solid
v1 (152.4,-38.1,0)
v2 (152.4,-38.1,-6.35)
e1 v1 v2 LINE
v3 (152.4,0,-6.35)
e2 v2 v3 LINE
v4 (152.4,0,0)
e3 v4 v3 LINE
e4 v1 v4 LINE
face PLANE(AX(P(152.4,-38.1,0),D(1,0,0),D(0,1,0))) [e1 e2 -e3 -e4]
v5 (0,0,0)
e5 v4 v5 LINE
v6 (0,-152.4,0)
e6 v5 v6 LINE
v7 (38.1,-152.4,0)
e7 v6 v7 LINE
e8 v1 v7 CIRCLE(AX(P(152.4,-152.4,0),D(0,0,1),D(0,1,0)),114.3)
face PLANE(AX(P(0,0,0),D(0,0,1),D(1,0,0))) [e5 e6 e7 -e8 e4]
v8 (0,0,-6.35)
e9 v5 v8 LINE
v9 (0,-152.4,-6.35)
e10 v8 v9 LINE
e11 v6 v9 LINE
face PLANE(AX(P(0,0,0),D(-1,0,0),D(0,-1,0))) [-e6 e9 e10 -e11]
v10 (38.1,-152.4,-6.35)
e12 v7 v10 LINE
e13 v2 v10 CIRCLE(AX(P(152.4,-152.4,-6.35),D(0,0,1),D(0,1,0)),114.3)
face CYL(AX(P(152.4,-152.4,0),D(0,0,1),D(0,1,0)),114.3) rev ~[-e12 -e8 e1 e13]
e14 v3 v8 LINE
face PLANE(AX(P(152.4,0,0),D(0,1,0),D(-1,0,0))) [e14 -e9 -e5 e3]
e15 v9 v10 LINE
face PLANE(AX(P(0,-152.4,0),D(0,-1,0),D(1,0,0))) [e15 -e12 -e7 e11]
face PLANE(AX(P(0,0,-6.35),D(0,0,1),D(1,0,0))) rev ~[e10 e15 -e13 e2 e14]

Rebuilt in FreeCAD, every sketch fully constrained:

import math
import FreeCAD as App
import Part
import Sketcher
Q = App.Units.Quantity

doc = App.newDocument("Part")
params = doc.addObject("Spreadsheet::Sheet", "Params")
for row, (alias, value) in enumerate([
    ("sketch1_width", "6 in"),
    ("sketch1_width2", "1.5 in"),
    ("pad1_length", "0.25 in"),
], start=1):
    params.set(f"A{row}", alias)
    params.set(f"B{row}", "=" + value)
    params.setAlias(f"B{row}", alias)

body = doc.addObject("PartDesign::Body", "Body")

# Sketch on XY plane
sketch1 = body.newObject("Sketcher::SketchObject", "Sketch")
sketch1.AttachmentSupport = (doc.getObject("XY_Plane"), [""])
sketch1.MapMode = "FlatFace"
sketch1.addGeometry([
    Part.LineSegment(App.Vector(152, 0, 0), App.Vector(0, 0, 0)),  # 0
    Part.LineSegment(App.Vector(0, 0, 0), App.Vector(0, -152, 0)),  # 1
    Part.LineSegment(App.Vector(0, -152, 0), App.Vector(38, -152, 0)),  # 2
    Part.ArcOfCircle(Part.Circle(App.Vector(152, -152, 0), App.Vector(0, 0, 1), 114), math.radians(90), math.radians(180)),  # 3
    Part.LineSegment(App.Vector(152, -38, 0), App.Vector(152, 0, 0)),  # 4
], False)
sketch1.addConstraint([
    Sketcher.Constraint("Coincident", 0, 2, 1, 1),
    Sketcher.Constraint("Coincident", 1, 2, 2, 1),
    Sketcher.Constraint("Coincident", 2, 2, 3, 2),
    Sketcher.Constraint("Coincident", 3, 1, 4, 1),
    Sketcher.Constraint("Coincident", 4, 2, 0, 1),
    Sketcher.Constraint("Horizontal", 0),
    Sketcher.Constraint("Vertical", 1),
    Sketcher.Constraint("Horizontal", 2),
    Sketcher.Constraint("Vertical", 4),
    Sketcher.Constraint("Coincident", 0, 2, -1, 1),
    Sketcher.Constraint("Horizontal", 3, 3, 1, 2),
    Sketcher.Constraint("Equal", 0, 1),
    Sketcher.Constraint("Equal", 2, 4),
    Sketcher.Constraint("DistanceX", 0, 2, 0, 1, Q("6 in")),
    Sketcher.Constraint("DistanceX", 2, 1, 2, 2, Q("1.5 in")),
])
sketch1.setExpression("Constraints[13]", "Params.sketch1_width")
sketch1.setExpression("Constraints[14]", "Params.sketch1_width2")
pad1 = body.newObject("PartDesign::Pad", "Pad")
pad1.Profile = sketch1
pad1.setExpression("Length", "Params.pad1_length")
pad1.Reversed = True

doc.recompute()
